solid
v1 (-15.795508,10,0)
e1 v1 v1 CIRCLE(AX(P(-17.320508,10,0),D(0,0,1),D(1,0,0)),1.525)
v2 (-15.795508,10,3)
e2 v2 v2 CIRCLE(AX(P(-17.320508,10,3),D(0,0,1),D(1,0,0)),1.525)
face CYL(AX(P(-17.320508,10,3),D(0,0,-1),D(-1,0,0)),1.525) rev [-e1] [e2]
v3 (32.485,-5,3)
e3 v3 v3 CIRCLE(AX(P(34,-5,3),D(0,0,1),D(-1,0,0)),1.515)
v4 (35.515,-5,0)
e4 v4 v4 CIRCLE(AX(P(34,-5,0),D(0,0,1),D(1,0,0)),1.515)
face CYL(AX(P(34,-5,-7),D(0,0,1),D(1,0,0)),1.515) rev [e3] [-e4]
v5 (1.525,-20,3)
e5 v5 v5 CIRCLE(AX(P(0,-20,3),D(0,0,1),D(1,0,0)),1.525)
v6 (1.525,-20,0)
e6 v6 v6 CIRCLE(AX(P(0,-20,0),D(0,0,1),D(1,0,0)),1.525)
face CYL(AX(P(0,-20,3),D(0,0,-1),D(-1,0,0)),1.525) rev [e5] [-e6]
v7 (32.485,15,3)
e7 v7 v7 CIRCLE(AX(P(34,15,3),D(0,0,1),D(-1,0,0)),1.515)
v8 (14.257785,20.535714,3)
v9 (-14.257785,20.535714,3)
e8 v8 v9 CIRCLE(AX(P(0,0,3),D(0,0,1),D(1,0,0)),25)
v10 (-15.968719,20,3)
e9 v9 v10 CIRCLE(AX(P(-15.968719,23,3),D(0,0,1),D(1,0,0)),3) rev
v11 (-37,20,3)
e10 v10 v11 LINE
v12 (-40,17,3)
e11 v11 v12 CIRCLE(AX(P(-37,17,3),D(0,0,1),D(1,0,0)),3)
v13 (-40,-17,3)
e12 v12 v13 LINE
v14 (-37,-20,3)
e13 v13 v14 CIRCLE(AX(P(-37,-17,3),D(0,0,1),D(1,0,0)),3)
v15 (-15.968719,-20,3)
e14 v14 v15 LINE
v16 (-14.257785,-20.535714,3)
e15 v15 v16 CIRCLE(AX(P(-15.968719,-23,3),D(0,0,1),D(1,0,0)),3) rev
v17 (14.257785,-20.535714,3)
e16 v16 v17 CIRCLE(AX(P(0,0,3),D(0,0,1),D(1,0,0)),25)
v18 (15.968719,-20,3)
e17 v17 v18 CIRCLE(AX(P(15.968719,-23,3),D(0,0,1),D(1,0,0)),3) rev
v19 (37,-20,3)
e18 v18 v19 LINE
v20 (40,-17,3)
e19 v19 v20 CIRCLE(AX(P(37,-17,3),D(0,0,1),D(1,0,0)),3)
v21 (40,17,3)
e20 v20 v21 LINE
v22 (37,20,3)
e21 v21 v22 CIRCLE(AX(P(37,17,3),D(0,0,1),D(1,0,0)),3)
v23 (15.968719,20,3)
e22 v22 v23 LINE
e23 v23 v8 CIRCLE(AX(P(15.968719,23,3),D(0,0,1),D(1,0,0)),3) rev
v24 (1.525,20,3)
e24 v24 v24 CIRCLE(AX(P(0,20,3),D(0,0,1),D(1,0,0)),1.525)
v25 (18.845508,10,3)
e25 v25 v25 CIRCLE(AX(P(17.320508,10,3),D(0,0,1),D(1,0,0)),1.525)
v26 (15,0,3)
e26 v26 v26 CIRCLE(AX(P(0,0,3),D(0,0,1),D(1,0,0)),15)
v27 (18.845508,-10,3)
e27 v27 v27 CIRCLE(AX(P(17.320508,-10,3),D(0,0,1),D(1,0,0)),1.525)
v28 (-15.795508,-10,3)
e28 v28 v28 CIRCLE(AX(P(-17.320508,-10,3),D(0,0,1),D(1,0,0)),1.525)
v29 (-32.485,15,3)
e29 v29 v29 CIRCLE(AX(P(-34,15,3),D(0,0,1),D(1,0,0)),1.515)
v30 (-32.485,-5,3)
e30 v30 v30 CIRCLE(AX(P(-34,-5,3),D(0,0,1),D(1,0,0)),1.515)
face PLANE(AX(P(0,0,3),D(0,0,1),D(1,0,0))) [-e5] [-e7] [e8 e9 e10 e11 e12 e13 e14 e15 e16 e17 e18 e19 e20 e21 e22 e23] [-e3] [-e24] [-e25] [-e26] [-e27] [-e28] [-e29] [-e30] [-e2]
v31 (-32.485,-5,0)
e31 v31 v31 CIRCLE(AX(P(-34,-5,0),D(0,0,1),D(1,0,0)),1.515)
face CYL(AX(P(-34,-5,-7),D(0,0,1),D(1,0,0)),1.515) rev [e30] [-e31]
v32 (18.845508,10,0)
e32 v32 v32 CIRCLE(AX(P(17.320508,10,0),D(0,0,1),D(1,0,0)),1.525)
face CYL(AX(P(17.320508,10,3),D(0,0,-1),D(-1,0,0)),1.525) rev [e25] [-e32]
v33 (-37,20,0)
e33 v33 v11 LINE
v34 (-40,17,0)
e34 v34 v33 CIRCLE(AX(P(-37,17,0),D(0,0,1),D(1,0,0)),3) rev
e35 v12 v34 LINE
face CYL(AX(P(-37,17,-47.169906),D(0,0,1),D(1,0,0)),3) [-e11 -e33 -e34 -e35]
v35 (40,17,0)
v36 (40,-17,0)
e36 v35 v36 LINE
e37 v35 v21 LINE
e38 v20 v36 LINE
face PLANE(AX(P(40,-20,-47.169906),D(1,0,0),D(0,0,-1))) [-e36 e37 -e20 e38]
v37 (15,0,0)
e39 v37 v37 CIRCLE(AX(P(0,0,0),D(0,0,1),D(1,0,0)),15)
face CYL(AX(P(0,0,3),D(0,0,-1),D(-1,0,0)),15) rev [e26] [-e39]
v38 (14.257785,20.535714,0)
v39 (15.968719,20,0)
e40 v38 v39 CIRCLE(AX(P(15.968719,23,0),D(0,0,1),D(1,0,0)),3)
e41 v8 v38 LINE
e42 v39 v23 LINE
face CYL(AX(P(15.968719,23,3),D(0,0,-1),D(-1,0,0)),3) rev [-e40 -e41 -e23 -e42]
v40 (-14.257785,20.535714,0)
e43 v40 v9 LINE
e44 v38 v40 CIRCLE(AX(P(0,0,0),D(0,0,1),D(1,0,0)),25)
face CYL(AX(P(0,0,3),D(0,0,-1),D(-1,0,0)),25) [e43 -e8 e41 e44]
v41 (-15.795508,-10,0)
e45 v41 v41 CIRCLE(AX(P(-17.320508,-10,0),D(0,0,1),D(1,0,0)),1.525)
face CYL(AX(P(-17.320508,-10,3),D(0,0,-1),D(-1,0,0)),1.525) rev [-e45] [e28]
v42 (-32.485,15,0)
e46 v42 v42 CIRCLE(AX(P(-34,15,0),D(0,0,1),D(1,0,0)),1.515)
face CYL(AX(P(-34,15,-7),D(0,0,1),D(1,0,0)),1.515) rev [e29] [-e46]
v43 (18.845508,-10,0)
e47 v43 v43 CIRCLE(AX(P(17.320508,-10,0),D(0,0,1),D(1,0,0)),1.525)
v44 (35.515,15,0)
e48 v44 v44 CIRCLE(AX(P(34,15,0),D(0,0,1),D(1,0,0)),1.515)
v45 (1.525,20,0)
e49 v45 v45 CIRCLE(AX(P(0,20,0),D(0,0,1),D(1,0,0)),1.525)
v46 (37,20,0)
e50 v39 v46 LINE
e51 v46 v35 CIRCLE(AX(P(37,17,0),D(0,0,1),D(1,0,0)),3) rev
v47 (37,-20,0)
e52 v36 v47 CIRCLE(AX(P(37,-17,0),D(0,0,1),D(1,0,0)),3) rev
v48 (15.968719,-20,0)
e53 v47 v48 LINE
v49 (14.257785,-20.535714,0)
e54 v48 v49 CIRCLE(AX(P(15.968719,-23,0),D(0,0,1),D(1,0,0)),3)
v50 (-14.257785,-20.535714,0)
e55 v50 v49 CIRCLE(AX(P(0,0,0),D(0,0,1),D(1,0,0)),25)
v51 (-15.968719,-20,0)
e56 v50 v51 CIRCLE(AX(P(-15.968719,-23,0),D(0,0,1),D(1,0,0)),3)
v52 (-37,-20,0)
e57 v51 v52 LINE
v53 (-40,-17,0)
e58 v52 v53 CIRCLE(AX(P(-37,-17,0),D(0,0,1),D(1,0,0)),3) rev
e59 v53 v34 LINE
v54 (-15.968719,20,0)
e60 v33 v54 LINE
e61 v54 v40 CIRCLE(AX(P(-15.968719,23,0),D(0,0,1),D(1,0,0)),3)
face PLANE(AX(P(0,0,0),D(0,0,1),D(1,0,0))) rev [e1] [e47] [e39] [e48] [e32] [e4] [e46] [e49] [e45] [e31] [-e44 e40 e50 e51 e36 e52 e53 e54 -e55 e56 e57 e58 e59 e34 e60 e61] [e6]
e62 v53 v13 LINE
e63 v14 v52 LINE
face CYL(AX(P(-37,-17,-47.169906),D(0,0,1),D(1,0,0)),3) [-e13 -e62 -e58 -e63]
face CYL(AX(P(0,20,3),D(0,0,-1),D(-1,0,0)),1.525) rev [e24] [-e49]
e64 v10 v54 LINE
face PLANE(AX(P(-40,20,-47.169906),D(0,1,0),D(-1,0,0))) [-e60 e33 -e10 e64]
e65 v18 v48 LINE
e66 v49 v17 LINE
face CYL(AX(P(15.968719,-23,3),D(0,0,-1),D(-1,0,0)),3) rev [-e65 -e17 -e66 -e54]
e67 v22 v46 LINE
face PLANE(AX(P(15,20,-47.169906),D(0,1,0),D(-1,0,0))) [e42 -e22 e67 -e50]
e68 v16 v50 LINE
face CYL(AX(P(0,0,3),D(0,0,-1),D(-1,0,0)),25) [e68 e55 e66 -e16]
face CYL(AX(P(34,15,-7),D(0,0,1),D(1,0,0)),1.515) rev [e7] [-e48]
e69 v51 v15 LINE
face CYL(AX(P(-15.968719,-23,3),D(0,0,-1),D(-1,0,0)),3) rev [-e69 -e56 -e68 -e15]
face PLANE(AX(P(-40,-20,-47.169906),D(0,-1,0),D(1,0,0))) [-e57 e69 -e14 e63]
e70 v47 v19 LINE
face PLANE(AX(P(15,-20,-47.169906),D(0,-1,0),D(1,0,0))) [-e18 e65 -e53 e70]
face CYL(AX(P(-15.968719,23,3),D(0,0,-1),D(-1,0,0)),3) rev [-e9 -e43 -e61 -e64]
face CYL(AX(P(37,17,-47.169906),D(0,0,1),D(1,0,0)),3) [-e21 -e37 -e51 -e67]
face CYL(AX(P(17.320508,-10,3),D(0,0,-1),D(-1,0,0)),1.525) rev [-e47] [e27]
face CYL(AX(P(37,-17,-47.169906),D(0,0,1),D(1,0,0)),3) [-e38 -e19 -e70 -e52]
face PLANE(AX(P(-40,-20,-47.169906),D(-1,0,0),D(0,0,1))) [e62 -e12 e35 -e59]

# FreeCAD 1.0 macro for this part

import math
import FreeCAD as App
import Part
import Sketcher

V = App.Vector
Q = App.Units.Quantity


def edges_at(feature, points):
    """Names of the edges that pass closest to the given points."""
    edges = feature.Shape.Edges
    near = lambda p: min(range(len(edges)), key=lambda i: edges[i].distToShape(Part.Vertex(*p))[0])
    return sorted({f"Edge{near(p) + 1}" for p in points})

doc = App.newDocument("Part")
body = doc.addObject("PartDesign::Body", "Body")

# Sketch on XY plane
sketch1 = body.newObject("Sketcher::SketchObject", "Sketch")
sketch1.AttachmentSupport = (doc.getObject("XY_Plane"), [""])
sketch1.MapMode = "FlatFace"
sketch1.addGeometry(Part.Circle(V(0, 0, 0), V(0, 0, 1), 25), False)
sketch1.addGeometry(Part.Circle(V(-17.3, -10, 0), V(0, 0, 1), 1.5), False)
sketch1.addGeometry(Part.Circle(V(0, -20, 0), V(0, 0, 1), 1.5), False)
sketch1.addGeometry(Part.Circle(V(0, 0, 0), V(0, 0, 1), 15), False)
sketch1.addGeometry(Part.Circle(V(17.3, -10, 0), V(0, 0, 1), 1.5), False)
sketch1.addGeometry(Part.Circle(V(-17.3, 10, 0), V(0, 0, 1), 1.5), False)
sketch1.addGeometry(Part.Circle(V(17.3, 10, 0), V(0, 0, 1), 1.5), False)
sketch1.addGeometry(Part.Circle(V(0, 20, 0), V(0, 0, 1), 1.5), False)
sketch1.addConstraint(Sketcher.Constraint("Coincident", 0, 3, -1, 1))
sketch1.addConstraint(Sketcher.Constraint("Coincident", 3, 3, -1, 1))
sketch1.addConstraint(Sketcher.Constraint("Equal", 1, 2))
sketch1.addConstraint(Sketcher.Constraint("Equal", 2, 4))
sketch1.addConstraint(Sketcher.Constraint("Equal", 4, 5))
sketch1.addConstraint(Sketcher.Constraint("Equal", 5, 6))
sketch1.addConstraint(Sketcher.Constraint("Equal", 6, 7))
sketch1.addConstraint(Sketcher.Constraint("Symmetric", 4, 3, 5, 3, -1, 1))
sketch1.addConstraint(Sketcher.Constraint("Symmetric", 1, 3, 6, 3, -1, 1))
sketch1.addConstraint(Sketcher.Constraint("Symmetric", 2, 3, 7, 3, -1, 1))
sketch1.addConstraint(Sketcher.Constraint("Symmetric", 1, 3, 4, 3, -2))
sketch1.addConstraint(Sketcher.Constraint("PointOnObject", 2, 3, -2))
sketch1.addConstraint(Sketcher.Constraint("Diameter", 0, Q("50 mm")))
sketch1.addConstraint(Sketcher.Constraint("Diameter", 3, Q("30 mm")))
sketch1.addConstraint(Sketcher.Constraint("Diameter", 1, Q("3.05 mm")))
sketch1.addConstraint(Sketcher.Constraint("DistanceY", 1, 3, -1, 1, Q("10 mm")))
sketch1.addConstraint(Sketcher.Constraint("DistanceY", 2, 3, -1, 1, Q("20 mm")))
sketch1.addConstraint(Sketcher.Constraint("DistanceX", 1, 3, -1, 1, Q("17.320508 mm")))
pad1 = body.newObject("PartDesign::Pad", "Pad")
pad1.Profile = sketch1
pad1.Length = 3

# Sketch on XY plane
sketch2 = body.newObject("Sketcher::SketchObject", "Sketch001")
sketch2.AttachmentSupport = (doc.getObject("XY_Plane"), [""])
sketch2.MapMode = "FlatFace"
sketch2.addGeometry(Part.LineSegment(V(40, 20, 0), V(15, 20, 0)), False)
sketch2.addGeometry(Part.ArcOfCircle(Part.Circle(V(0, 0, 0), V(0, 0, 1), 25), math.radians(-53), math.radians(53)), False)
sketch2.addGeometry(Part.LineSegment(V(15, -20, 0), V(40, -20, 0)), False)
sketch2.addGeometry(Part.LineSegment(V(40, -20, 0), V(40, 20, 0)), False)
sketch2.addGeometry(Part.LineSegment(V(-40, -20, 0), V(-15, -20, 0)), False)
sketch2.addGeometry(Part.ArcOfCircle(Part.Circle(V(0, 0, 0), V(0, 0, 1), 25), math.radians(127), math.radians(233)), False)
sketch2.addGeometry(Part.LineSegment(V(-15, 20, 0), V(-40, 20, 0)), False)
sketch2.addGeometry(Part.LineSegment(V(-40, 20, 0), V(-40, -20, 0)), False)
sketch2.addConstraint(Sketcher.Constraint("Coincident", 0, 2, 1, 2))
sketch2.addConstraint(Sketcher.Constraint("Coincident", 1, 1, 2, 1))
sketch2.addConstraint(Sketcher.Constraint("Coincident", 2, 2, 3, 1))
sketch2.addConstraint(Sketcher.Constraint("Coincident", 3, 2, 0, 1))
sketch2.addConstraint(Sketcher.Constraint("Coincident", 4, 2, 5, 2))
sketch2.addConstraint(Sketcher.Constraint("Coincident", 5, 1, 6, 1))
sketch2.addConstraint(Sketcher.Constraint("Coincident", 6, 2, 7, 1))
sketch2.addConstraint(Sketcher.Constraint("Coincident", 7, 2, 4, 1))
sketch2.addConstraint(Sketcher.Constraint("Horizontal", 0))
sketch2.addConstraint(Sketcher.Constraint("Horizontal", 2))
sketch2.addConstraint(Sketcher.Constraint("Vertical", 3))
sketch2.addConstraint(Sketcher.Constraint("Horizontal", 4))
sketch2.addConstraint(Sketcher.Constraint("Horizontal", 6))
sketch2.addConstraint(Sketcher.Constraint("Vertical", 7))
sketch2.addConstraint(Sketcher.Constraint("Coincident", 1, 3, -1, 1))
sketch2.addConstraint(Sketcher.Constraint("Coincident", 5, 3, -1, 1))
sketch2.addConstraint(Sketcher.Constraint("Equal", 1, 5))
sketch2.addConstraint(Sketcher.Constraint("Symmetric", 2, 2, 6, 2, -1, 1))
sketch2.addConstraint(Sketcher.Constraint("Horizontal", 2, 2, 4, 2))
sketch2.addConstraint(Sketcher.Constraint("Horizontal", 3, 2, 5, 1))
sketch2.addConstraint(Sketcher.Constraint("Radius", 1, Q("25 mm")))
sketch2.addConstraint(Sketcher.Constraint("DistanceX", 0, 2, 0, 1, Q("25 mm")))
sketch2.addConstraint(Sketcher.Constraint("DistanceY", 3, 1, 3, 2, Q("40 mm")))
pad2 = body.newObject("PartDesign::Pad", "Pad001")
pad2.Profile = sketch2
pad2.Length = 3
doc.recompute()

fillet = body.newObject("PartDesign::Fillet", "Fillet")
fillet.Base = (pad2, edges_at(pad2, [
    (40, 20, 1.5),
    (40, -20, 1.5),
    (15, -20, 1.5),
    (15, 20, 1.5),
    (-40, -20, 1.5),
    (-40, 20, 1.5),
    (-15, 20, 1.5),
    (-15, -20, 1.5),
]))
fillet.Radius = 3

# Sketch on XY plane
sketch3 = body.newObject("Sketcher::SketchObject", "Sketch002")
sketch3.AttachmentSupport = (doc.getObject("XY_Plane"), [""])
sketch3.MapMode = "FlatFace"
sketch3.AttachmentOffset = App.Placement(V(0, 0, 3), App.Rotation())
sketch3.addGeometry(Part.Circle(V(-34, 15, 0), V(0, 0, 1), 1.5), False)
sketch3.addGeometry(Part.Circle(V(-34, -5, 0), V(0, 0, 1), 1.5), False)
sketch3.addGeometry(Part.Circle(V(34, -5, 0), V(0, 0, 1), 1.5), False)
sketch3.addGeometry(Part.Circle(V(34, 15, 0), V(0, 0, 1), 1.5), False)
sketch3.addConstraint(Sketcher.Constraint("Equal", 0, 1))
sketch3.addConstraint(Sketcher.Constraint("Equal", 1, 2))
sketch3.addConstraint(Sketcher.Constraint("Equal", 2, 3))
sketch3.addConstraint(Sketcher.Constraint("Symmetric", 1, 3, 2, 3, -2))
sketch3.addConstraint(Sketcher.Constraint("Symmetric", 0, 3, 3, 3, -2))
sketch3.addConstraint(Sketcher.Constraint("Vertical", 0, 3, 1, 3))
sketch3.addConstraint(Sketcher.Constraint("Diameter", 0, Q("3.03 mm")))
sketch3.addConstraint(Sketcher.Constraint("DistanceX", 0, 3, -1, 1, Q("34 mm")))
sketch3.addConstraint(Sketcher.Constraint("DistanceY", -1, 1, 0, 3, Q("15 mm")))
sketch3.addConstraint(Sketcher.Constraint("DistanceY", 1, 3, -1, 1, Q("5 mm")))
pocket1 = body.newObject("PartDesign::Pocket", "Pocket")
pocket1.Profile = sketch3
pocket1.Length = 10

doc.recompute()
